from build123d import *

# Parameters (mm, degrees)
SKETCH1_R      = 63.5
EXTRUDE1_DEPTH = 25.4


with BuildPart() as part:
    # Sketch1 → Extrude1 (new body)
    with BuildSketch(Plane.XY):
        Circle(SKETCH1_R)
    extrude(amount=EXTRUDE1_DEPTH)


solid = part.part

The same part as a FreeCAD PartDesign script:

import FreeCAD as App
import Part
import Sketcher
Q = App.Units.Quantity

doc = App.newDocument("Part")
params = doc.addObject("Spreadsheet::Sheet", "Params")
for row, (alias, value) in enumerate([
    ("sketch1_diameter", "5 in"),
    ("pad1_length", "1 in"),
], start=1):
    params.set(f"A{row}", alias)
    params.set(f"B{row}", "=" + value)
    params.setAlias(f"B{row}", alias)

body = doc.addObject("PartDesign::Body", "Body")

# Sketch on XY plane
sketch1 = body.newObject("Sketcher::SketchObject", "Sketch")
sketch1.AttachmentSupport = (doc.getObject("XY_Plane"), [""])
sketch1.MapMode = "FlatFace"
sketch1.addGeometry(Part.Circle(App.Vector(0, 0, 0), App.Vector(0, 0, 1), 63.5), False)
sketch1.addConstraint([
    Sketcher.Constraint("Coincident", 0, 3, -1, 1),
    Sketcher.Constraint("Diameter", 0, Q("5 in")),
])
sketch1.setExpression("Constraints[1]", "Params.sketch1_diameter")
pad1 = body.newObject("PartDesign::Pad", "Pad")
pad1.Profile = sketch1
pad1.setExpression("Length", "Params.pad1_length")

doc.recompute()
